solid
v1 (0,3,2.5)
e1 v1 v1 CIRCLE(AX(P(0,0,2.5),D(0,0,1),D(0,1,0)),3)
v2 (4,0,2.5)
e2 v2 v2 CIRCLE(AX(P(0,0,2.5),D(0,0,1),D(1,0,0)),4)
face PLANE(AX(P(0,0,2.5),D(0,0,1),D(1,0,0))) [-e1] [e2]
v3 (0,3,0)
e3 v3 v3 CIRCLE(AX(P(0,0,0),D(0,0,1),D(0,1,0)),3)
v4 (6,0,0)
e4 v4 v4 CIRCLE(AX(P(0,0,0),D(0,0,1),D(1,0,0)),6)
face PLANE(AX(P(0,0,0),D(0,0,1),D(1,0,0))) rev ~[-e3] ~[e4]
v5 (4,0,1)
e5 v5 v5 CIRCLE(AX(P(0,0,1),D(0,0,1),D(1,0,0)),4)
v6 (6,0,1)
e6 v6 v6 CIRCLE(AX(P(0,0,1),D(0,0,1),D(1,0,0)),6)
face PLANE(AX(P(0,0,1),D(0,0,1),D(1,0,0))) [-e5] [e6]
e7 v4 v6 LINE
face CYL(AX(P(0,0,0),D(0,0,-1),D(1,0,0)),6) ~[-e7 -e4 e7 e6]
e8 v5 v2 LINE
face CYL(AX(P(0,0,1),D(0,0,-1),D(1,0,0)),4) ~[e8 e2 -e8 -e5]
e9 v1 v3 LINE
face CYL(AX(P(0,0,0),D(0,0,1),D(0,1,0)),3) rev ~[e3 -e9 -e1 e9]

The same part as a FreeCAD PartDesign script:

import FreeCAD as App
import Part
import Sketcher
from FreeCAD import Vector

doc = App.newDocument("Part")
body = doc.addObject("PartDesign::Body", "Body")

# Sketch on XY plane
sketch1 = doc.addObject("Sketcher::SketchObject", "Sketch")
body.addObject(sketch1)
sketch1.AttachmentSupport = (doc.XY_Plane, [""])
sketch1.MapMode = "FlatFace"
sketch1.addGeometry(Part.Circle(Vector(0, 0, 0), Vector(0, 0, 1), 6), False)
sketch1.addConstraint([
    Sketcher.Constraint("Coincident", 0, 3, -1, 1),
    Sketcher.Constraint("Diameter", 0, 12.0),
])
pad1 = doc.addObject("PartDesign::Pad", "Pad")
body.addObject(pad1)
pad1.Profile = sketch1
pad1.Length = 1

# Sketch on XY plane
sketch2 = doc.addObject("Sketcher::SketchObject", "Sketch001")
body.addObject(sketch2)
sketch2.AttachmentSupport = (doc.XY_Plane, [""])
sketch2.MapMode = "FlatFace"
sketch2.AttachmentOffset = App.Placement(Vector(0, 0, 1), App.Rotation())
sketch2.addGeometry([
    Part.Circle(Vector(0, 0, 0), Vector(0, 0, 1), 4),
    Part.Circle(Vector(0, 0, 0), Vector(0, 0, 1), 3),
], False)
sketch2.addConstraint([
    Sketcher.Constraint("Coincident", 0, 3, -1, 1),
    Sketcher.Constraint("Coincident", 1, 3, -1, 1),
    Sketcher.Constraint("Diameter", 0, 8.0),
    Sketcher.Constraint("Diameter", 1, 6.0),
])
pad2 = doc.addObject("PartDesign::Pad", "Pad001")
body.addObject(pad2)
pad2.Profile = sketch2
pad2.Length = 1.5

# Sketch on XY plane
sketch3 = doc.addObject("Sketcher::SketchObject", "Sketch002")
body.addObject(sketch3)
sketch3.AttachmentSupport = (doc.XY_Plane, [""])
sketch3.MapMode = "FlatFace"
sketch3.addGeometry(Part.Circle(Vector(0, 0, 0), Vector(0, 0, 1), 3), False)
sketch3.addConstraint([
    Sketcher.Constraint("Coincident", 0, 3, -1, 1),
    Sketcher.Constraint("Diameter", 0, 6.0),
])
doc.recompute()
hole = doc.addObject("PartDesign::Hole", "Hole")
body.addObject(hole)
hole.Profile = sketch3
hole.ThreadType = "None"
hole.Diameter = 6
hole.DepthType = "ThroughAll"
hole.Reversed = True

doc.recompute()
